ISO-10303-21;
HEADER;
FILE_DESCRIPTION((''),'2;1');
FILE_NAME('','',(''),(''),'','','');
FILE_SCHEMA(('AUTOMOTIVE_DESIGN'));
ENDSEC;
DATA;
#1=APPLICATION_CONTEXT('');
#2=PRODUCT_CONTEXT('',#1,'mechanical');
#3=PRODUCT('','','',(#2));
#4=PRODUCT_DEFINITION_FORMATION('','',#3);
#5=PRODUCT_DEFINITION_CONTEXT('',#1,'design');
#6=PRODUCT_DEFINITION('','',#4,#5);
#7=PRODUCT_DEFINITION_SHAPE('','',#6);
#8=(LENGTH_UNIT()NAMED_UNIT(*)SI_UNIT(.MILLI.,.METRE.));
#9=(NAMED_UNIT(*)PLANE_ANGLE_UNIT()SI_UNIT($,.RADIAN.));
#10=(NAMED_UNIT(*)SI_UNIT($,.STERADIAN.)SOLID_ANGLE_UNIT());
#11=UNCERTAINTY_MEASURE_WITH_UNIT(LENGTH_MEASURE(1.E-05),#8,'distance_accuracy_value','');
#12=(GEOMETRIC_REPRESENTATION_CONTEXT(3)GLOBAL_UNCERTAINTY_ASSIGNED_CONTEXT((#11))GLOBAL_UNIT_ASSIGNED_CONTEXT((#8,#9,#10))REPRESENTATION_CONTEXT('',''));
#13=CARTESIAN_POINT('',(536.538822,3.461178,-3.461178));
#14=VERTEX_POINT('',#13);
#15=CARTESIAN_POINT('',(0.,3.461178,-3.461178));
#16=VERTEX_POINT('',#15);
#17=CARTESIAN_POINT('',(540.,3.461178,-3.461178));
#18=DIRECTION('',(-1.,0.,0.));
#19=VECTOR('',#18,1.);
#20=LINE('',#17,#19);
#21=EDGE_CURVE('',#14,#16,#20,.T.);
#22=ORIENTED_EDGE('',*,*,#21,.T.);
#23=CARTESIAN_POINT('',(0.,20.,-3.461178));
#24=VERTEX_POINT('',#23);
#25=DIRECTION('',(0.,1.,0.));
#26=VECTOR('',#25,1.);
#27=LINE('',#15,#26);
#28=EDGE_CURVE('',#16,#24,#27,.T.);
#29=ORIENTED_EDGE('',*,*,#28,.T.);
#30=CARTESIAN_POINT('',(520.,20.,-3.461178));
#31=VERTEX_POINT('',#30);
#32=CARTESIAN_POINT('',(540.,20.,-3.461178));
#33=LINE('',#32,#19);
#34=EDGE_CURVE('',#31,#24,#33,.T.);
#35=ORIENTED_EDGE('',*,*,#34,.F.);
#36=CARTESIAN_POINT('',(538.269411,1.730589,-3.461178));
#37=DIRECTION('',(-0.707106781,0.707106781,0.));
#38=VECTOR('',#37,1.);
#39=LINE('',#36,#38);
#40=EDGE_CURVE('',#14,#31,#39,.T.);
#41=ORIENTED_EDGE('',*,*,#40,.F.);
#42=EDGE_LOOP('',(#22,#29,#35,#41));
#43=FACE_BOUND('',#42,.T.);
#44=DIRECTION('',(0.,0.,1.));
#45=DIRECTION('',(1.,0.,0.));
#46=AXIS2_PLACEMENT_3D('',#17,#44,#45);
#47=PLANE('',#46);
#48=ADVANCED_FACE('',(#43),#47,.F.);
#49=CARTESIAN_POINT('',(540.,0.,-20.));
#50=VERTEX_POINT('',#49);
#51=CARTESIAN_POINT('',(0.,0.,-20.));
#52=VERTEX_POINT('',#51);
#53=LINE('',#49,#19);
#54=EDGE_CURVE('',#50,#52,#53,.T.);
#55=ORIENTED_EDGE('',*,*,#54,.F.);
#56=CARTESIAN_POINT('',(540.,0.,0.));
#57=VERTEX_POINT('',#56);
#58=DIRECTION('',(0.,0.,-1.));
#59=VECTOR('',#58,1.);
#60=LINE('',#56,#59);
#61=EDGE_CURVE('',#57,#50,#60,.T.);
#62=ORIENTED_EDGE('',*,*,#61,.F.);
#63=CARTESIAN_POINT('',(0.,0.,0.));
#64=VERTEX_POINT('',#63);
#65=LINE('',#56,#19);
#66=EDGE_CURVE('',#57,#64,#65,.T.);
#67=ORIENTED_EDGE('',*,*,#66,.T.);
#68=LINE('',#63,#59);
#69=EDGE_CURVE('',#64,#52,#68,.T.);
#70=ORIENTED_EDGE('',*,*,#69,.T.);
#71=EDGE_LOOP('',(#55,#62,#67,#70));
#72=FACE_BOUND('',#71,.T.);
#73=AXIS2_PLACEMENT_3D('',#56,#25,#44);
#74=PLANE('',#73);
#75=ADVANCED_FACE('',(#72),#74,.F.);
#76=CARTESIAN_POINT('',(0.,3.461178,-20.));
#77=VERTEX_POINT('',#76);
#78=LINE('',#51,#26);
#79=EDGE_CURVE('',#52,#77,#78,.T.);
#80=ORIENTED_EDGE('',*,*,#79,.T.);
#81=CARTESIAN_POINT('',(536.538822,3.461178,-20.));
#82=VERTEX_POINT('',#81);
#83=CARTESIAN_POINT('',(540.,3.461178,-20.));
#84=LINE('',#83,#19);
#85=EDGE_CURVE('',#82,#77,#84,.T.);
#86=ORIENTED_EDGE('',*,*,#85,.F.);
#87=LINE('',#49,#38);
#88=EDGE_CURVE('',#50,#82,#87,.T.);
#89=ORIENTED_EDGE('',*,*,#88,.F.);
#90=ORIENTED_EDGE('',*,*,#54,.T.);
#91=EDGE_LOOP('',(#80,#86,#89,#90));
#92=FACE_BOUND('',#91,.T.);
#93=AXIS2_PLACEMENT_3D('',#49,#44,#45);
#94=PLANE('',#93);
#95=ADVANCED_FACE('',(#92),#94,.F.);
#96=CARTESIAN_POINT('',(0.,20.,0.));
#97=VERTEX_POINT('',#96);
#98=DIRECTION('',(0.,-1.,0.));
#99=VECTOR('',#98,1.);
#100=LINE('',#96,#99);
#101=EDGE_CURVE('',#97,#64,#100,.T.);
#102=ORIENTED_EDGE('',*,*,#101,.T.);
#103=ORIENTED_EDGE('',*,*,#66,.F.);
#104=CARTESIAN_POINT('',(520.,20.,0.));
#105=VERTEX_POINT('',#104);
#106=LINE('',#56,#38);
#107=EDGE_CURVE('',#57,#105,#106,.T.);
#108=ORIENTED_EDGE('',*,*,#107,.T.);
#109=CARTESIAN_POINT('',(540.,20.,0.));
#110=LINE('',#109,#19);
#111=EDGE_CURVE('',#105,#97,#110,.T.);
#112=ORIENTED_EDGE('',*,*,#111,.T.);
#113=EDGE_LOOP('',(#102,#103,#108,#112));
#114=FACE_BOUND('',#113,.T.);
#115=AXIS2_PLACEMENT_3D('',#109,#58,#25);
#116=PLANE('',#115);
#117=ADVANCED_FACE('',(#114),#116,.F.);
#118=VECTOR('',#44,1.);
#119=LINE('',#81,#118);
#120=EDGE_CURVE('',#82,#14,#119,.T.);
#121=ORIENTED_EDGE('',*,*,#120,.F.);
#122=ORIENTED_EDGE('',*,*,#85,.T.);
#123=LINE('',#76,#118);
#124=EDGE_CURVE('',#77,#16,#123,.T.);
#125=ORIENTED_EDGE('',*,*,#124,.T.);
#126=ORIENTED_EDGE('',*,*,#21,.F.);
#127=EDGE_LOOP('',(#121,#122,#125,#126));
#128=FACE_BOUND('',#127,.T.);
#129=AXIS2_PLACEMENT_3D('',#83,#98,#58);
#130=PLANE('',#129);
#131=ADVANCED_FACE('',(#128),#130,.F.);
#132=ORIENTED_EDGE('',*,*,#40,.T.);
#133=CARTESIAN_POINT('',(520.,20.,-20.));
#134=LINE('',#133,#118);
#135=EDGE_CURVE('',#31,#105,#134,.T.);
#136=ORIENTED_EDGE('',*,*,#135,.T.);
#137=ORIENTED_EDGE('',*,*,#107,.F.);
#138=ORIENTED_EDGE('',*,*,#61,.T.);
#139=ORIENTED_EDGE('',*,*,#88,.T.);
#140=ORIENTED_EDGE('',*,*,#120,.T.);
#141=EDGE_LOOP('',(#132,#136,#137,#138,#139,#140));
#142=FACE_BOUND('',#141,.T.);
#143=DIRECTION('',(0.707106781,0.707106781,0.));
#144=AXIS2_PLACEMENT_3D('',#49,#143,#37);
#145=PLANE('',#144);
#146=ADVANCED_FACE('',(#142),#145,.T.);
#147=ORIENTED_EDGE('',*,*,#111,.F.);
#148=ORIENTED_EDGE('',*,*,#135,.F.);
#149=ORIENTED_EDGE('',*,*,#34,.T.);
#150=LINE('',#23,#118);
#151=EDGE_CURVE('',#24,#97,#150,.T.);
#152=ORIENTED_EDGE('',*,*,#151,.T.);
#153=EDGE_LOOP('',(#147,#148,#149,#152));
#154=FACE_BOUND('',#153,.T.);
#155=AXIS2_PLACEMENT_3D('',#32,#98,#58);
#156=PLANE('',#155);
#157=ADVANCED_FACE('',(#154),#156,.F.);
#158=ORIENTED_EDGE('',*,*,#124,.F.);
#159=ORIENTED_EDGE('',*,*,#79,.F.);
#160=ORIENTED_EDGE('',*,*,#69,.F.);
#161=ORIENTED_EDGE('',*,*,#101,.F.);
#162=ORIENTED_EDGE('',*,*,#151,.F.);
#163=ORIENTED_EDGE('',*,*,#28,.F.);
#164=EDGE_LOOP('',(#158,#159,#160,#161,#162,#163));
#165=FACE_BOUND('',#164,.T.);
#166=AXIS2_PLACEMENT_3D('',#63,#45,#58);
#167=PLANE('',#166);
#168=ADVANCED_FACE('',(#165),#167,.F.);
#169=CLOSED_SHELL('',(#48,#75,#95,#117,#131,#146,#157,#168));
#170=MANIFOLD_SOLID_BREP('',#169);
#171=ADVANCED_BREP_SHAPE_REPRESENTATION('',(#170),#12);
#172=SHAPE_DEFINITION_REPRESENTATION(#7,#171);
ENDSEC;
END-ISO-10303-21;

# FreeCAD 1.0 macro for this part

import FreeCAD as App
import Part
import Sketcher
Q = App.Units.Quantity

doc = App.newDocument("Part")
params = doc.addObject("Spreadsheet::Sheet", "Params")
for row, (alias, value) in enumerate([
    ("sketch1_width", "20 mm"),
    ("pad1_length", "540 mm"),
    ("sketch2_width", "20 mm"),
], start=1):
    params.set(f"A{row}", alias)
    params.set(f"B{row}", "=" + value)
    params.setAlias(f"B{row}", alias)

body = doc.addObject("PartDesign::Body", "Body")

sketch1 = body.newObject("Sketcher::SketchObject", "Sketch")
sketch1.AttachmentSupport = (doc.getObject("YZ_Plane"), [""])
sketch1.MapMode = "FlatFace"
sketch1.addGeometry([
    Part.LineSegment(App.Vector(0, 0, 0), App.Vector(0, -20, 0)),
    Part.LineSegment(App.Vector(0, -20, 0), App.Vector(3.5, -20, 0)),
    Part.LineSegment(App.Vector(3.5, -20, 0), App.Vector(3.5, -3.5, 0)),
    Part.LineSegment(App.Vector(3.5, -3.5, 0), App.Vector(20, -3.5, 0)),
    Part.LineSegment(App.Vector(20, -3.5, 0), App.Vector(20, 0, 0)),
    Part.LineSegment(App.Vector(20, 0, 0), App.Vector(0, 0, 0)),
], False)
sketch1.addConstraint([
    Sketcher.Constraint("Coincident", 0, 2, 1, 1),
    Sketcher.Constraint("Coincident", 1, 2, 2, 1),
    Sketcher.Constraint("Coincident", 2, 2, 3, 1),
    Sketcher.Constraint("Coincident", 3, 2, 4, 1),
    Sketcher.Constraint("Coincident", 4, 2, 5, 1),
    Sketcher.Constraint("Coincident", 5, 2, 0, 1),
    Sketcher.Constraint("Vertical", 0),
    Sketcher.Constraint("Horizontal", 1),
    Sketcher.Constraint("Vertical", 2),
    Sketcher.Constraint("Horizontal", 3),
    Sketcher.Constraint("Vertical", 4),
    Sketcher.Constraint("Horizontal", 5),
    Sketcher.Constraint("Coincident", 5, 2, -1, 1),
    Sketcher.Constraint("Equal", 5, 0),
    Sketcher.Constraint("Equal", 3, 2),
    Sketcher.Constraint("DistanceX", 5, 2, 5, 1, Q("20 mm")),
    Sketcher.Constraint("DistanceX", 1, 1, 1, 2, Q("3.461178 mm")),
])
sketch1.setExpression("Constraints[15]", "Params.sketch1_width")
pad1 = body.newObject("PartDesign::Pad", "Pad")
pad1.Profile = sketch1
pad1.setExpression("Length", "Params.pad1_length")

sketch2 = body.newObject("Sketcher::SketchObject", "Sketch001")
sketch2.AttachmentSupport = (doc.getObject("XY_Plane"), [""])
sketch2.MapMode = "FlatFace"
sketch2.addGeometry([
    Part.LineSegment(App.Vector(540, 0, 0), App.Vector(520, 20, 0)),
    Part.LineSegment(App.Vector(520, 20, 0), App.Vector(540, 20, 0)),
    Part.LineSegment(App.Vector(540, 20, 0), App.Vector(540, 0, 0)),
], False)
sketch2.addConstraint([
    Sketcher.Constraint("Coincident", 0, 2, 1, 1),
    Sketcher.Constraint("Coincident", 1, 2, 2, 1),
    Sketcher.Constraint("Coincident", 2, 2, 0, 1),
    Sketcher.Constraint("Horizontal", 1),
    Sketcher.Constraint("Vertical", 2),
    Sketcher.Constraint("PointOnObject", 2, 2, -1),
    Sketcher.Constraint("Equal", 1, 2),
    Sketcher.Constraint("DistanceX", 1, 1, 1, 2, Q("20 mm")),
    Sketcher.Constraint("DistanceX", -1, 1, 0, 2, Q("520 mm")),
])
sketch2.setExpression("Constraints[7]", "Params.sketch2_width")
pocket1 = body.newObject("PartDesign::Pocket", "Pocket")
pocket1.Profile = sketch2
pocket1.Type = "ThroughAll"

doc.recompute()
